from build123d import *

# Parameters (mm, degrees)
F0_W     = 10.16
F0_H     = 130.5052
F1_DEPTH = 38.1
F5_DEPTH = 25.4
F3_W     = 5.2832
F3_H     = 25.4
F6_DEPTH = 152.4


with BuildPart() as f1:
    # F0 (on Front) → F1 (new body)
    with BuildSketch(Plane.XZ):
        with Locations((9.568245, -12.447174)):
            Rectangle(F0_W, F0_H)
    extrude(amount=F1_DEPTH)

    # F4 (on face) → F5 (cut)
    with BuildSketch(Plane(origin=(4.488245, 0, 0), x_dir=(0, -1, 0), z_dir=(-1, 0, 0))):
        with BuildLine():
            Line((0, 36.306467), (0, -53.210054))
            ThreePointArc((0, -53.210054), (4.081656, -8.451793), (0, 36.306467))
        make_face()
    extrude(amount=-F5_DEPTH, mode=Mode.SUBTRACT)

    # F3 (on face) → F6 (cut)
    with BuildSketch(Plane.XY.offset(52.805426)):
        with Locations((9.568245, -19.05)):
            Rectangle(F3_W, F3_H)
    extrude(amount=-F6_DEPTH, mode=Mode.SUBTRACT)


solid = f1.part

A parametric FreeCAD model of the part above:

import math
import FreeCAD as App
import Part
import Sketcher

V = App.Vector
Q = App.Units.Quantity


def add_polygon(sketch, points):
    """Adds a closed chain of lines whose ends are joined by coincident constraints."""
    first, n = sketch.GeometryCount, len(points)
    for a, b in zip(points, points[1:] + points[:1]):
        sketch.addGeometry(Part.LineSegment(App.Vector(*a, 0), App.Vector(*b, 0)), False)
    for i in range(n):
        sketch.addConstraint(Sketcher.Constraint("Coincident", first + i, 2, first + (i + 1) % n, 1))

doc = App.newDocument("Part")
body = doc.addObject("PartDesign::Body", "Body")

# Sketch on XZ plane
sketch1 = body.newObject("Sketcher::SketchObject", "Sketch")
sketch1.AttachmentSupport = (doc.getObject("XZ_Plane"), [""])
sketch1.MapMode = "FlatFace"
add_polygon(sketch1, [(4.488245, 52.805426), (4.488245, -77.699774), (14.648245, -77.699774), (14.648245, 52.805426)])  # lines 0-3
sketch1.addConstraint(Sketcher.Constraint("Vertical", 0))
sketch1.addConstraint(Sketcher.Constraint("Horizontal", 1))
sketch1.addConstraint(Sketcher.Constraint("Vertical", 2))
sketch1.addConstraint(Sketcher.Constraint("Horizontal", 3))
sketch1.addConstraint(Sketcher.Constraint("DistanceX", 1, 1, 1, 2, Q("0.4 in")))
sketch1.addConstraint(Sketcher.Constraint("DistanceY", 0, 2, 0, 1, Q("5.138 in")))
sketch1.addConstraint(Sketcher.Constraint("DistanceX", -1, 1, 0, 2, Q("4.488245 mm")))
sketch1.addConstraint(Sketcher.Constraint("DistanceY", 0, 2, -1, 1, Q("77.699774 mm")))
pad1 = body.newObject("PartDesign::Pad", "Pad")
pad1.Profile = sketch1
pad1.Length = Q("1.5 in")

# Sketch on YZ plane
sketch2 = body.newObject("Sketcher::SketchObject", "Sketch001")
sketch2.AttachmentSupport = (doc.getObject("YZ_Plane"), [""])
sketch2.MapMode = "FlatFace"
sketch2.AttachmentOffset = App.Placement(V(0, 0, 4.488245), App.Rotation())
sketch2.addGeometry(Part.LineSegment(V(0, 36.306467, 0), V(0, -53.210054, 0)), False)
sketch2.addGeometry(Part.ArcOfCircle(Part.Circle(V(243.362249, -8.451794, 0), V(0, 0, 1), 247.443905), math.radians(169.578836), math.radians(190.421164)), False)
sketch2.addConstraint(Sketcher.Constraint("Coincident", 0, 1, 1, 1))
sketch2.addConstraint(Sketcher.Constraint("Coincident", 1, 2, 0, 2))
sketch2.addConstraint(Sketcher.Constraint("Vertical", 0))
sketch2.addConstraint(Sketcher.Constraint("PointOnObject", 0, 1, -2))
sketch2.addConstraint(Sketcher.Constraint("Radius", 1, Q("247.443905 mm")))
sketch2.addConstraint(Sketcher.Constraint("DistanceY", 0, 2, 0, 1, Q("89.516521 mm")))
sketch2.addConstraint(Sketcher.Constraint("DistanceY", 1, 3, -1, 1, Q("8.451794 mm")))
pocket1 = body.newObject("PartDesign::Pocket", "Pocket")
pocket1.Profile = sketch2
pocket1.Length = Q("1 in")
pocket1.Reversed = True

# Sketch on XY plane
sketch3 = body.newObject("Sketcher::SketchObject", "Sketch002")
sketch3.AttachmentSupport = (doc.getObject("XY_Plane"), [""])
sketch3.MapMode = "FlatFace"
sketch3.AttachmentOffset = App.Placement(V(0, 0, 52.805426), App.Rotation())
add_polygon(sketch3, [(6.926645, -6.35), (6.926645, -31.75), (12.209845, -31.75), (12.209845, -6.35)])  # lines 0-3
sketch3.addConstraint(Sketcher.Constraint("Vertical", 0))
sketch3.addConstraint(Sketcher.Constraint("Horizontal", 1))
sketch3.addConstraint(Sketcher.Constraint("Vertical", 2))
sketch3.addConstraint(Sketcher.Constraint("Horizontal", 3))
sketch3.addConstraint(Sketcher.Constraint("DistanceY", 0, 2, 0, 1, Q("1 in")))
sketch3.addConstraint(Sketcher.Constraint("DistanceX", 1, 1, 1, 2, Q("0.208 in")))
sketch3.addConstraint(Sketcher.Constraint("DistanceY", 0, 2, -1, 1, Q("1.25 in")))
sketch3.addConstraint(Sketcher.Constraint("DistanceX", -1, 1, 0, 2, Q("6.926645 mm")))
pocket2 = body.newObject("PartDesign::Pocket", "Pocket001")
pocket2.Profile = sketch3
pocket2.Length = Q("6 in")

doc.recompute()
